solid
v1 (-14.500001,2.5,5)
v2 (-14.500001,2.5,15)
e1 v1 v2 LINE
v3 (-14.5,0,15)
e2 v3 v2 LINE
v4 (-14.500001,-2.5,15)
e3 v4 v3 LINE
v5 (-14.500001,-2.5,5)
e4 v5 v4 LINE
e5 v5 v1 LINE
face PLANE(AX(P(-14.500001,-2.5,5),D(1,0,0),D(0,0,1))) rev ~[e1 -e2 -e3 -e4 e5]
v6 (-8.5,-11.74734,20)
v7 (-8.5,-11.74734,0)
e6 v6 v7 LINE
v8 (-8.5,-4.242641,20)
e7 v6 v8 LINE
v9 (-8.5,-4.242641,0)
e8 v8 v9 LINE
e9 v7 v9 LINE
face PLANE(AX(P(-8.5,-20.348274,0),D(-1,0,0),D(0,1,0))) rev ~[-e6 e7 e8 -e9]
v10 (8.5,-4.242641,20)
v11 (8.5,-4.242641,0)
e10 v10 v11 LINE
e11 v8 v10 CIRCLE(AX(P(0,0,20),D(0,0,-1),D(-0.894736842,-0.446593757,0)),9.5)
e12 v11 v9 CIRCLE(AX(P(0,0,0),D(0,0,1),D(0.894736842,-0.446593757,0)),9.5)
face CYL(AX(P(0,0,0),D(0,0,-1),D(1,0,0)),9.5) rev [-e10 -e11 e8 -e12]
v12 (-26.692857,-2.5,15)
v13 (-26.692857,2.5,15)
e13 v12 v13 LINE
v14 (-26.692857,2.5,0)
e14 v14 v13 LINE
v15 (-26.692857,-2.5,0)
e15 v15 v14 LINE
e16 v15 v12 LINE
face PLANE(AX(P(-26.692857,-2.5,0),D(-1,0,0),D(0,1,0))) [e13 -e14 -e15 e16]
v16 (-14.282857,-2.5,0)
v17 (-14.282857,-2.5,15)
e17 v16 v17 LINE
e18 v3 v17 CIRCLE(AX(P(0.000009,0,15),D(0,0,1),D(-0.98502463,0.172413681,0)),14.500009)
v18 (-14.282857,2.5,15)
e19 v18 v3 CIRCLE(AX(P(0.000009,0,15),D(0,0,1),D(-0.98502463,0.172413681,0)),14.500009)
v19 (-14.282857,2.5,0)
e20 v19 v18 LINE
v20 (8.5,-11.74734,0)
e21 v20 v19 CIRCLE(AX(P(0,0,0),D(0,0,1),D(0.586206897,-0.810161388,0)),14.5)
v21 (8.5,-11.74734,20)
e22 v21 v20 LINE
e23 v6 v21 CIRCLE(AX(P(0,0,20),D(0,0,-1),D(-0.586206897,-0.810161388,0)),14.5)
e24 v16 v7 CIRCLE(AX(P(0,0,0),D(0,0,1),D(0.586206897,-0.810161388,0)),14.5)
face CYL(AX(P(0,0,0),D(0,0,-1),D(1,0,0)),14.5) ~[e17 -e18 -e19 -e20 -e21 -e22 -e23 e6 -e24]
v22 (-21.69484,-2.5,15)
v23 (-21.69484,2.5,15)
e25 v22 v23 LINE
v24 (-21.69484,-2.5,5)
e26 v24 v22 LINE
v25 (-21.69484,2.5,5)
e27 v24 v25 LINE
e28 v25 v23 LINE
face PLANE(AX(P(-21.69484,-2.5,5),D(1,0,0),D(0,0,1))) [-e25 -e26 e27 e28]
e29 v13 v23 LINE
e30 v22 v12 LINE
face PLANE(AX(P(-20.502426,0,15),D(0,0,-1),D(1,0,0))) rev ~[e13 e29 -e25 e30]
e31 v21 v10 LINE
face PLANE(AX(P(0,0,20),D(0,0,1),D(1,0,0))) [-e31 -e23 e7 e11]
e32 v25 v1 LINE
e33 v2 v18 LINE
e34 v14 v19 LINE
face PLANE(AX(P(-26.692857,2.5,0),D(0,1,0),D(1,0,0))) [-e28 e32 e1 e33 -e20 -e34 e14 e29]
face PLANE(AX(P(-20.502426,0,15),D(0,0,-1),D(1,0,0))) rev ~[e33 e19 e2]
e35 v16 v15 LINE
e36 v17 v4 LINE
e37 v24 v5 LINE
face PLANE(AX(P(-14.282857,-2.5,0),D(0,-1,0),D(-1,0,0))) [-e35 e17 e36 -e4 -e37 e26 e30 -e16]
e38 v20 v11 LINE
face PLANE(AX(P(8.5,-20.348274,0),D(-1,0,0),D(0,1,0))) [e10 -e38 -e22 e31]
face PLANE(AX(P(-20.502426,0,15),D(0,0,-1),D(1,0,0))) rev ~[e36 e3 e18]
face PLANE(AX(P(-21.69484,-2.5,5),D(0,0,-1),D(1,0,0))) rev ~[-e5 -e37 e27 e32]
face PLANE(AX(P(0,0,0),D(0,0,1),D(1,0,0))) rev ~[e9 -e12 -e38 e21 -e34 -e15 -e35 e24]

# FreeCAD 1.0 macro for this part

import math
import FreeCAD as App
import Part
import Sketcher
from FreeCAD import Vector

doc = App.newDocument("Part")
body = doc.addObject("PartDesign::Body", "Body")

# Sketch on XY plane
sketch1 = body.newObject("Sketcher::SketchObject", "Sketch")
sketch1.AttachmentSupport = (doc.getObject("XY_Plane"), [""])
sketch1.MapMode = "FlatFace"
sketch1.addGeometry(Part.Circle(Vector(0, 0, 0), Vector(0, 0, 1), 14), False)
sketch1.addGeometry(Part.Circle(Vector(0, 0, 0), Vector(0, 0, 1), 10), False)
sketch1.addConstraint(Sketcher.Constraint("Coincident", 0, 3, -1, 1))
sketch1.addConstraint(Sketcher.Constraint("Coincident", 1, 3, -1, 1))
sketch1.addConstraint(Sketcher.Constraint("Diameter", 0, 29.0))
sketch1.addConstraint(Sketcher.Constraint("Diameter", 1, 19.0))
pad1 = body.newObject("PartDesign::Pad", "Pad")
pad1.Profile = sketch1
pad1.Length = 20

# Sketch on XY plane
sketch2 = body.newObject("Sketcher::SketchObject", "Sketch001")
sketch2.AttachmentSupport = (doc.getObject("XY_Plane"), [""])
sketch2.MapMode = "FlatFace"
sketch2.addGeometry(Part.LineSegment(Vector(-8, 0, 0), Vector(-8, -20, 0)), False)
sketch2.addGeometry(Part.LineSegment(Vector(-8, -20, 0), Vector(8, -20, 0)), False)
sketch2.addGeometry(Part.LineSegment(Vector(8, -20, 0), Vector(8, 0, 0)), False)
sketch2.addGeometry(Part.LineSegment(Vector(8, 0, 0), Vector(-8, 0, 0)), False)
sketch2.addConstraint(Sketcher.Constraint("Coincident", 0, 2, 1, 1))
sketch2.addConstraint(Sketcher.Constraint("Coincident", 1, 2, 2, 1))
sketch2.addConstraint(Sketcher.Constraint("Coincident", 2, 2, 3, 1))
sketch2.addConstraint(Sketcher.Constraint("Coincident", 3, 2, 0, 1))
sketch2.addConstraint(Sketcher.Constraint("Vertical", 0))
sketch2.addConstraint(Sketcher.Constraint("Horizontal", 1))
sketch2.addConstraint(Sketcher.Constraint("Vertical", 2))
sketch2.addConstraint(Sketcher.Constraint("Horizontal", 3))
sketch2.addConstraint(Sketcher.Constraint("Symmetric", 2, 2, 3, 2, -1, 1))
sketch2.addConstraint(Sketcher.Constraint("DistanceX", 1, 1, 1, 2, 17.0))
sketch2.addConstraint(Sketcher.Constraint("DistanceY", 0, 2, 0, 1, 20.348274))
pocket1 = body.newObject("PartDesign::Pocket", "Pocket")
pocket1.Profile = sketch2
pocket1.Length = 20
pocket1.Reversed = True

# Sketch on XY plane
sketch3 = body.newObject("Sketcher::SketchObject", "Sketch002")
sketch3.AttachmentSupport = (doc.getObject("XY_Plane"), [""])
sketch3.MapMode = "FlatFace"
sketch3.addGeometry(Part.ArcOfCircle(Part.Circle(Vector(0, 0, 0), Vector(0, 0, 1), 15), math.radians(170.07), math.radians(189.93)), False)
sketch3.addGeometry(Part.LineSegment(Vector(-14, -2, 0), Vector(-27, -2, 0)), False)
sketch3.addGeometry(Part.LineSegment(Vector(-27, -2, 0), Vector(-27, 2, 0)), False)
sketch3.addGeometry(Part.LineSegment(Vector(-27, 2, 0), Vector(-14, 2, 0)), False)
sketch3.addConstraint(Sketcher.Constraint("Coincident", 0, 2, 1, 1))
sketch3.addConstraint(Sketcher.Constraint("Coincident", 1, 2, 2, 1))
sketch3.addConstraint(Sketcher.Constraint("Coincident", 2, 2, 3, 1))
sketch3.addConstraint(Sketcher.Constraint("Coincident", 3, 2, 0, 1))
sketch3.addConstraint(Sketcher.Constraint("Horizontal", 1))
sketch3.addConstraint(Sketcher.Constraint("Vertical", 2))
sketch3.addConstraint(Sketcher.Constraint("Horizontal", 3))
sketch3.addConstraint(Sketcher.Constraint("Coincident", 0, 3, -1, 1))
sketch3.addConstraint(Sketcher.Constraint("Vertical", 0, 2, 3, 2))
sketch3.addConstraint(Sketcher.Constraint("DistanceY", 2, 1, 2, 2, 5.0))
sketch3.addConstraint(Sketcher.Constraint("DistanceX", 1, 2, 1, 1, 12.41))
sketch3.addConstraint(Sketcher.Constraint("Radius", 0, 14.500009))
pad2 = body.newObject("PartDesign::Pad", "Pad001")
pad2.Profile = sketch3
pad2.Length = 15

# Sketch on XZ plane
sketch4 = body.newObject("Sketcher::SketchObject", "Sketch003")
sketch4.AttachmentSupport = (doc.getObject("XZ_Plane"), [""])
sketch4.MapMode = "FlatFace"
sketch4.AttachmentOffset = App.Placement(Vector(0, 0, 2.5), App.Rotation())
sketch4.addGeometry(Part.LineSegment(Vector(-22, 15, 0), Vector(-22, 5, 0)), False)
sketch4.addGeometry(Part.LineSegment(Vector(-22, 5, 0), Vector(-15, 5, 0)), False)
sketch4.addGeometry(Part.LineSegment(Vector(-15, 5, 0), Vector(-15, 15, 0)), False)
sketch4.addGeometry(Part.LineSegment(Vector(-15, 15, 0), Vector(-22, 15, 0)), False)
sketch4.addConstraint(Sketcher.Constraint("Coincident", 0, 2, 1, 1))
sketch4.addConstraint(Sketcher.Constraint("Coincident", 1, 2, 2, 1))
sketch4.addConstraint(Sketcher.Constraint("Coincident", 2, 2, 3, 1))
sketch4.addConstraint(Sketcher.Constraint("Coincident", 3, 2, 0, 1))
sketch4.addConstraint(Sketcher.Constraint("Vertical", 0))
sketch4.addConstraint(Sketcher.Constraint("Horizontal", 1))
sketch4.addConstraint(Sketcher.Constraint("Vertical", 2))
sketch4.addConstraint(Sketcher.Constraint("Horizontal", 3))
sketch4.addConstraint(Sketcher.Constraint("DistanceY", 0, 2, 0, 1, 10.0))
sketch4.addConstraint(Sketcher.Constraint("DistanceY", -1, 1, 0, 2, 5.0))
sketch4.addConstraint(Sketcher.Constraint("DistanceX", 1, 2, -1, 1, 14.500001))
sketch4.addConstraint(Sketcher.Constraint("DistanceX", 1, 1, 1, 2, 7.194839))
pocket2 = body.newObject("PartDesign::Pocket", "Pocket001")
pocket2.Profile = sketch4
pocket2.Length = 5

doc.recompute()
